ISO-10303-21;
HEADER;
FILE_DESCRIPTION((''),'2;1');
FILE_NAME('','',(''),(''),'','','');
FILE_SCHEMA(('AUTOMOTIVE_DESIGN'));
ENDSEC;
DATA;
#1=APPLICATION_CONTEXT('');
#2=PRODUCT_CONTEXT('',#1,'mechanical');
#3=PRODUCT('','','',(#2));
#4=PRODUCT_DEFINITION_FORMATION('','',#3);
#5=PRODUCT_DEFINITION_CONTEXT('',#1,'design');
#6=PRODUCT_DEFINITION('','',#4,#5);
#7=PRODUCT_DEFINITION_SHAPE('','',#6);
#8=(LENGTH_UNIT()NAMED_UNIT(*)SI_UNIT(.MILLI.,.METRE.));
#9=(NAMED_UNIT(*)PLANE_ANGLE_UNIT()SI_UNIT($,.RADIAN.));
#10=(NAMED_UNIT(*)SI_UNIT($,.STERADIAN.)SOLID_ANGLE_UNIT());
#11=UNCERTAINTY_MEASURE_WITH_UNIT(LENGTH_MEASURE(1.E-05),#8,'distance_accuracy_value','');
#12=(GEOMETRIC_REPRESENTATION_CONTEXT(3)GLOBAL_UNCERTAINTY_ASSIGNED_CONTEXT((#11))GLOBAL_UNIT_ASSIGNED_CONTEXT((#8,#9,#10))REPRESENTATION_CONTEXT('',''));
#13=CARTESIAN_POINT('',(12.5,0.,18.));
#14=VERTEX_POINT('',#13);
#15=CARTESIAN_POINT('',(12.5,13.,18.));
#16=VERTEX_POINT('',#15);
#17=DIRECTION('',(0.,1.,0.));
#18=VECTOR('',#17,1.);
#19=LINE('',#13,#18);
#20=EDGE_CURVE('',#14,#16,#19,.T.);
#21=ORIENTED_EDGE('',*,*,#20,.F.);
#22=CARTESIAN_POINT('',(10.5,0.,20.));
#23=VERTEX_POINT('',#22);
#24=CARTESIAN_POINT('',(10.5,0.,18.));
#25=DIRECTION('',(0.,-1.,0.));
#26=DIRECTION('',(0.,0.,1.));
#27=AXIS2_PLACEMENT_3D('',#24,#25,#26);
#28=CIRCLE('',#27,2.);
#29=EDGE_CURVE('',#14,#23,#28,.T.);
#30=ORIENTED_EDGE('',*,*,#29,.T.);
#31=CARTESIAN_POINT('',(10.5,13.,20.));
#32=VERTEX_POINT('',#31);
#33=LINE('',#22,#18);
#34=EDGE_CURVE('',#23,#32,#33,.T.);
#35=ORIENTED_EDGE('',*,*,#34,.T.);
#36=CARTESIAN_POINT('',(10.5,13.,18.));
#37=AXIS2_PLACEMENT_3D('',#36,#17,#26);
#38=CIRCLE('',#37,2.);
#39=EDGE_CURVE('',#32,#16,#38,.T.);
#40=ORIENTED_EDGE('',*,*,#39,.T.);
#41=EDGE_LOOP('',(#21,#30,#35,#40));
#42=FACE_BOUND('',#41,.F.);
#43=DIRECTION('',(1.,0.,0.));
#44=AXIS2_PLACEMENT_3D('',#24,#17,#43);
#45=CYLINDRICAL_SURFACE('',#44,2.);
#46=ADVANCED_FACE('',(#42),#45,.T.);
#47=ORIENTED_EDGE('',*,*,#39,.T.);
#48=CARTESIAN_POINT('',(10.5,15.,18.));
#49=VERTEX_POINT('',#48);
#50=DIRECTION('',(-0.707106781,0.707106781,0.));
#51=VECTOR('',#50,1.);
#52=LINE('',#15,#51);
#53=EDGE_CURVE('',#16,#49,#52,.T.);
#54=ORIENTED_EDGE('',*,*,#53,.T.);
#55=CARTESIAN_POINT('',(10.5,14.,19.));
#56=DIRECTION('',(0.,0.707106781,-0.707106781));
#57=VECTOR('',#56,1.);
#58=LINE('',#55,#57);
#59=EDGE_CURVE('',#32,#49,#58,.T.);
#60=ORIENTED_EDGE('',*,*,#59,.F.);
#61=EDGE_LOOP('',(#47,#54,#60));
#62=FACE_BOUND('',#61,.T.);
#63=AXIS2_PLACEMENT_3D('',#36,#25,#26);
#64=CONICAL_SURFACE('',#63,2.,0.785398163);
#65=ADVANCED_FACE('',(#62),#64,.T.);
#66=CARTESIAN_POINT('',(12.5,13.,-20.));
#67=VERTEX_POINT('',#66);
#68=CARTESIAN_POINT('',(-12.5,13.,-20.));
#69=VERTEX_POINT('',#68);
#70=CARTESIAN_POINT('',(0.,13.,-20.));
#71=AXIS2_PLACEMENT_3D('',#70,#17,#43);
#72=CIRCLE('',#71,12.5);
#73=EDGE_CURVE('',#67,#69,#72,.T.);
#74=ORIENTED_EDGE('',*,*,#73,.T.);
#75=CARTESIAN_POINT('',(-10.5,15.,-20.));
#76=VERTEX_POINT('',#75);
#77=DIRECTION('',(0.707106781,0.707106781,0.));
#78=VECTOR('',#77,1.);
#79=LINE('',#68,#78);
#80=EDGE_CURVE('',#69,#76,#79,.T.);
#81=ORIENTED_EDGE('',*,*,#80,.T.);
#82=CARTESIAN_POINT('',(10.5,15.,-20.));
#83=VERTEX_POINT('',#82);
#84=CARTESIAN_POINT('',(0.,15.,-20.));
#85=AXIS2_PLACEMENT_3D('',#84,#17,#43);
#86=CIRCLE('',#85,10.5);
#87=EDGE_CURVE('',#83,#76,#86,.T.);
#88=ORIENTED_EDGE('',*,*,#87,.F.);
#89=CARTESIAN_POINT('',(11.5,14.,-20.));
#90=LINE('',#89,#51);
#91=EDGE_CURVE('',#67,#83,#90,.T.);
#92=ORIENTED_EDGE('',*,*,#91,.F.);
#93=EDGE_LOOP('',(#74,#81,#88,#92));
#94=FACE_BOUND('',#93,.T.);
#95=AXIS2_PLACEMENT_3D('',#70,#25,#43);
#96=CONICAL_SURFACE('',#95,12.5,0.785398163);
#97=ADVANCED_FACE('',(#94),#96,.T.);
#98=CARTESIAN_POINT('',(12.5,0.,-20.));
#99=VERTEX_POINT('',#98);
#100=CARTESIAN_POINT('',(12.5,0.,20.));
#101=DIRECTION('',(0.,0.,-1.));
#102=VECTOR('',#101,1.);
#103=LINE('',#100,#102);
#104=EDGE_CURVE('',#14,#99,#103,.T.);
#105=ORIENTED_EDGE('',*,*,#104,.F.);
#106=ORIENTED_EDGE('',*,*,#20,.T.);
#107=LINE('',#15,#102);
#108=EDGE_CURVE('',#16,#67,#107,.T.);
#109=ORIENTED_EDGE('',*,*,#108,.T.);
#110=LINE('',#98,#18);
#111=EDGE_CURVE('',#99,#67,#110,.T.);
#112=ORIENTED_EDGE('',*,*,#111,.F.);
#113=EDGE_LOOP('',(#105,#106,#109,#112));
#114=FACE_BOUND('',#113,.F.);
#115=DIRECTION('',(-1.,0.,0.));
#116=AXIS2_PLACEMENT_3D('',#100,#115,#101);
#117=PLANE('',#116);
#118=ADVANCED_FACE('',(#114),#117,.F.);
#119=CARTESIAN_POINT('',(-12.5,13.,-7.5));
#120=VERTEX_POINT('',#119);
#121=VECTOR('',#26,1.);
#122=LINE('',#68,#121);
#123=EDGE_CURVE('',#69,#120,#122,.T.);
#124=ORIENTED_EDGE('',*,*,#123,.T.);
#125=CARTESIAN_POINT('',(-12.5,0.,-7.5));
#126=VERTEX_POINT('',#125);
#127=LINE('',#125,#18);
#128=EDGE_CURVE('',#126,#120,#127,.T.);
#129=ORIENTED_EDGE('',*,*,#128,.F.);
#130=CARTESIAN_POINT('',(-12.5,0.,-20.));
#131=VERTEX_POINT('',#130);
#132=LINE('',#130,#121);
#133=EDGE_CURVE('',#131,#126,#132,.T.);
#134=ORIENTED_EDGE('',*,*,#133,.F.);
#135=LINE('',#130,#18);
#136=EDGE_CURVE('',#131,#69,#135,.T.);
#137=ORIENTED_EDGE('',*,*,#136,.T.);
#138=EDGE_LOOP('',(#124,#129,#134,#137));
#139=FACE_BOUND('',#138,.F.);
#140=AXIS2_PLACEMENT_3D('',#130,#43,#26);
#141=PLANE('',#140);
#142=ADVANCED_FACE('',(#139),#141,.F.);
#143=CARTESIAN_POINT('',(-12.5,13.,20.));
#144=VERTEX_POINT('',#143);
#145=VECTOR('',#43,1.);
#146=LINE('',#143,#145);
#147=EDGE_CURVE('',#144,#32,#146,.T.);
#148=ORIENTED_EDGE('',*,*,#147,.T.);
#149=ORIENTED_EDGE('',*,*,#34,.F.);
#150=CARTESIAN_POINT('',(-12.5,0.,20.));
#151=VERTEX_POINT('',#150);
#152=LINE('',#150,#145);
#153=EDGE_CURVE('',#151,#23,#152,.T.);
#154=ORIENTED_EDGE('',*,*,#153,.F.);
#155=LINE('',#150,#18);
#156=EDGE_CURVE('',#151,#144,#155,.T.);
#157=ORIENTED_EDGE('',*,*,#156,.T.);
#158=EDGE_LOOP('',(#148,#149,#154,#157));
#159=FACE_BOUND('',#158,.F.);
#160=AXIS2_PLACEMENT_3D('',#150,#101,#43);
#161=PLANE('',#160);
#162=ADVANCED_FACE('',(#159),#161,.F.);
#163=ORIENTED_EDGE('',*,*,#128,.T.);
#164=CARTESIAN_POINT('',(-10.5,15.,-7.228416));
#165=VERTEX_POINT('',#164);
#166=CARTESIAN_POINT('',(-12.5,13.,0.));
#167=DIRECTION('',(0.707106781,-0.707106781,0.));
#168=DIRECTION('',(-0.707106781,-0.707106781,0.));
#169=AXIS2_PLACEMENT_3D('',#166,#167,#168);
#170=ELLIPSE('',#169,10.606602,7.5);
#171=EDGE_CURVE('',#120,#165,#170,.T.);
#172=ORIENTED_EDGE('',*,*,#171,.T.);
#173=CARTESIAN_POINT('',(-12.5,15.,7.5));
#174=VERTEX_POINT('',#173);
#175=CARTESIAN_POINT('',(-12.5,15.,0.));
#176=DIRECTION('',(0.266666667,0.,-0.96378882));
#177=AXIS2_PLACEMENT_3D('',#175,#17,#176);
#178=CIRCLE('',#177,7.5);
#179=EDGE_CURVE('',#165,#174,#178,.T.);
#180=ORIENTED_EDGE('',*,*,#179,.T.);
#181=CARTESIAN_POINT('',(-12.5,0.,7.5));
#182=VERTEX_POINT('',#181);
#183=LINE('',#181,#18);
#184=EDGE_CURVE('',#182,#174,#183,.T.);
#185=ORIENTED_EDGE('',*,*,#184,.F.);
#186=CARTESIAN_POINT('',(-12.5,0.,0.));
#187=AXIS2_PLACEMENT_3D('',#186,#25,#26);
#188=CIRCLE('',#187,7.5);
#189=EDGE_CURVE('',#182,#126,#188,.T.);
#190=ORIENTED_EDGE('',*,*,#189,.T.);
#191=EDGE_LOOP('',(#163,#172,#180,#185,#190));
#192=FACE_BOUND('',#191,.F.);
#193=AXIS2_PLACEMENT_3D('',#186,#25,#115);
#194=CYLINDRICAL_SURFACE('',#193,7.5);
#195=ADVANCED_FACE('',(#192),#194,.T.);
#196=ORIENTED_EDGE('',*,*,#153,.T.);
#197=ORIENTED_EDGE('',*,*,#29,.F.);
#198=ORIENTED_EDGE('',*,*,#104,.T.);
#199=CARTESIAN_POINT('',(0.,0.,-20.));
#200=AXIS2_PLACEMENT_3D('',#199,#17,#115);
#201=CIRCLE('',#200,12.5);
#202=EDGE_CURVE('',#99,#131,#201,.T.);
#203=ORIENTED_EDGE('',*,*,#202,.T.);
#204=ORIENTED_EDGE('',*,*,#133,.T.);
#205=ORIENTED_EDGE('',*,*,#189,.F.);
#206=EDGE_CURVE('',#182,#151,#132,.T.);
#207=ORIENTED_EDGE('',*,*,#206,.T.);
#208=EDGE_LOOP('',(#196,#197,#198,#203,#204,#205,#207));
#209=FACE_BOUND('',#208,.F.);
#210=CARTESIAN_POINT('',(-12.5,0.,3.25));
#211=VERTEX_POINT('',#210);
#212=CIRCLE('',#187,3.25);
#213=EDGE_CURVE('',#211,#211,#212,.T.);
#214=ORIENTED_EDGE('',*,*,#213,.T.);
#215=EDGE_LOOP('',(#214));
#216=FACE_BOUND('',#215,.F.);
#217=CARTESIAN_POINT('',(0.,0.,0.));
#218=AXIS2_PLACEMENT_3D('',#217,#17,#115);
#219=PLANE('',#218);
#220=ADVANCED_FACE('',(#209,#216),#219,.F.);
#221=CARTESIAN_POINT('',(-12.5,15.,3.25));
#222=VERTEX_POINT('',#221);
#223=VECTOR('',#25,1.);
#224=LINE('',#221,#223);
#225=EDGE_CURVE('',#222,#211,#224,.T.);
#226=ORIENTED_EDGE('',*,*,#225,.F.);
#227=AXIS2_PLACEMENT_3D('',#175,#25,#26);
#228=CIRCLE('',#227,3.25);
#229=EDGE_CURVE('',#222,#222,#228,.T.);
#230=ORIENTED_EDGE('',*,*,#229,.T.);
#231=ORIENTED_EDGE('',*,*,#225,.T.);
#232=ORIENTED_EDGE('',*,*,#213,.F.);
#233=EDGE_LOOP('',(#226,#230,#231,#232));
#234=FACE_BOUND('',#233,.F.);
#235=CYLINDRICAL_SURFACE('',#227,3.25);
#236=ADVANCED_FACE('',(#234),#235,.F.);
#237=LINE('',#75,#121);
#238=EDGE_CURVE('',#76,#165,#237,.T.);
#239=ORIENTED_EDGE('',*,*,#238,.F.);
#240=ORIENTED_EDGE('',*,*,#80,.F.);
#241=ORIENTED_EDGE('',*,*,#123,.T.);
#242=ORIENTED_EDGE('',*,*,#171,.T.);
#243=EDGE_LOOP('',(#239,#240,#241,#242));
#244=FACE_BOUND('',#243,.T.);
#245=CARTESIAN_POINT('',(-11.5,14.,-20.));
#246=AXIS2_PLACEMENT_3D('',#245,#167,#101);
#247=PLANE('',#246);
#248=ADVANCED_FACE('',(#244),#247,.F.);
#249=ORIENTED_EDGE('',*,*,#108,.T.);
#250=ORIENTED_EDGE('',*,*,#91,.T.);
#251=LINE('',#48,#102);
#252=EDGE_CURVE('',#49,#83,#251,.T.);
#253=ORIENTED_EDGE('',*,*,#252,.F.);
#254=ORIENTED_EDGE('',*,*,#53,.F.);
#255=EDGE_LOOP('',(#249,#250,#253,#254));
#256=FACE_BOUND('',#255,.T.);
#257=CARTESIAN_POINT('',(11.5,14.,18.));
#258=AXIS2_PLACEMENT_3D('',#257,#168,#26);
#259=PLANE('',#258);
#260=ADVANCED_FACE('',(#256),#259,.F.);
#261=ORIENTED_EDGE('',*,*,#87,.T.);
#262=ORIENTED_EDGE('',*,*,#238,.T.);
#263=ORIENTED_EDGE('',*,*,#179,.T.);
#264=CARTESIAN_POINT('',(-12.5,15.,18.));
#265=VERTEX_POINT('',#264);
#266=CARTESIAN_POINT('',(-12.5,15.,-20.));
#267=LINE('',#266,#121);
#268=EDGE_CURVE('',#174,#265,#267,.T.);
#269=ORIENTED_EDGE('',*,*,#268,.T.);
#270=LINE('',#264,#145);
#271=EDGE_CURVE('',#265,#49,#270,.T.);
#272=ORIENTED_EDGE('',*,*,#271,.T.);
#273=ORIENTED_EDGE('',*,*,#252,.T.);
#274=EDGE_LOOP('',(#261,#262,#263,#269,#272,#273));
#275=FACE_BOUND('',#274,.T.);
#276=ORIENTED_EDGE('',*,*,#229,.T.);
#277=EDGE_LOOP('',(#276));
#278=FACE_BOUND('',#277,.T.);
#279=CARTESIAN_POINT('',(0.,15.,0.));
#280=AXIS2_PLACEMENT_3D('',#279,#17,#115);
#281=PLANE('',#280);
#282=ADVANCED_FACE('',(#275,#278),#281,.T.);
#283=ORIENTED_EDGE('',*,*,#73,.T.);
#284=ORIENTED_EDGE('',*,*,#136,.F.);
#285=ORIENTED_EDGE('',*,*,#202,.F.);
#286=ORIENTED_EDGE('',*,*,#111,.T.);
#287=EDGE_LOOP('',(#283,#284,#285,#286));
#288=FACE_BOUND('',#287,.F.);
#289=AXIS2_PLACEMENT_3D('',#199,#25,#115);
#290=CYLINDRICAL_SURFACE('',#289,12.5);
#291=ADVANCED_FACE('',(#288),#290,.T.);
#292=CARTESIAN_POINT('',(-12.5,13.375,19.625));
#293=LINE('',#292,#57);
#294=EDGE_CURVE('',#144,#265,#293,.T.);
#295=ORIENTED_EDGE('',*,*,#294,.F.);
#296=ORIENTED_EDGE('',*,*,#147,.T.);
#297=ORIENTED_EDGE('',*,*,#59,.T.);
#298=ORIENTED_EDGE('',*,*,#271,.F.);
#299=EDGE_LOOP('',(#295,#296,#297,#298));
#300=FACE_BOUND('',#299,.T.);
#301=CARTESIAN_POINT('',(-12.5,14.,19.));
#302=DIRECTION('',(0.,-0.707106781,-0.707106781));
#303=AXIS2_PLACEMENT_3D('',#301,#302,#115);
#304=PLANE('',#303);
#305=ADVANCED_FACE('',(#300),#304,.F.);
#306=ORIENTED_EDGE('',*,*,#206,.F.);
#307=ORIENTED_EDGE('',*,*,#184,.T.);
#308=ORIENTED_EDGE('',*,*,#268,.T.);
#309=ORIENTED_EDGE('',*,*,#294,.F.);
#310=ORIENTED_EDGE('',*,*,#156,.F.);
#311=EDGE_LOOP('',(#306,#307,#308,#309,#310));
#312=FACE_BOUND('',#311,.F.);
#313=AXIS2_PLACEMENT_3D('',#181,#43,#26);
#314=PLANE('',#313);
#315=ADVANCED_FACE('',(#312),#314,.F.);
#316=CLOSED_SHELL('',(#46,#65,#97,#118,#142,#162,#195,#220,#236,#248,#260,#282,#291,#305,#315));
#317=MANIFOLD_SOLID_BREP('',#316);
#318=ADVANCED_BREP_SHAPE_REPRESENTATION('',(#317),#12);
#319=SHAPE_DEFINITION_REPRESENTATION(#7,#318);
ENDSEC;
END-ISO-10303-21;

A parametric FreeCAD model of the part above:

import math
import FreeCAD as App
import Part
import Sketcher

V = App.Vector
Q = App.Units.Quantity


def edges_at(feature, points):
    """Names of the edges that pass closest to the given points."""
    edges = feature.Shape.Edges
    near = lambda p: min(range(len(edges)), key=lambda i: edges[i].distToShape(Part.Vertex(*p))[0])
    return sorted({f"Edge{near(p) + 1}" for p in points})

doc = App.newDocument("Part")
params = doc.addObject("Spreadsheet::Sheet", "Params")
for row, (alias, value) in enumerate([
    ("sketch1_radius", "12.5 mm"),
    ("sketch1_radius2", "7.5 mm"),
    ("sketch1_height", "40 mm"),
    ("pad1_length", "15 mm"),
    ("fillet_radius", "2 mm"),
    ("chamfer_size", "2 mm"),
    ("sketch2_diameter", "6.5 mm"),
    ("hole_diameter", "6.5 mm"),
], start=1):
    params.set(f"A{row}", alias)
    params.set(f"B{row}", "=" + value)
    params.setAlias(f"B{row}", alias)

body = doc.addObject("PartDesign::Body", "Body")

# Sketch on XZ plane
sketch1 = body.newObject("Sketcher::SketchObject", "Sketch")
sketch1.AttachmentSupport = (doc.getObject("XZ_Plane"), [""])
sketch1.MapMode = "FlatFace"
sketch1.addGeometry(Part.LineSegment(V(12.5, 20, 0), V(12.5, -20, 0)), False)
sketch1.addGeometry(Part.ArcOfCircle(Part.Circle(V(0, -20, 0), V(0, 0, 1), 12.5), math.radians(180), math.radians(360)), False)
sketch1.addGeometry(Part.LineSegment(V(-12.5, -20, 0), V(-12.5, -7.5, 0)), False)
sketch1.addGeometry(Part.ArcOfCircle(Part.Circle(V(-12.5, 0, 0), V(0, 0, 1), 7.5), math.radians(90), math.radians(270)), False)
sketch1.addGeometry(Part.LineSegment(V(-12.5, 7.5, 0), V(-12.5, 20, 0)), False)
sketch1.addGeometry(Part.LineSegment(V(-12.5, 20, 0), V(12.5, 20, 0)), False)
sketch1.addConstraint(Sketcher.Constraint("Tangent", 0, 2, 1, 2))
sketch1.addConstraint(Sketcher.Constraint("Tangent", 1, 1, 2, 1))
sketch1.addConstraint(Sketcher.Constraint("Coincident", 2, 2, 3, 2))
sketch1.addConstraint(Sketcher.Constraint("Coincident", 3, 1, 4, 1))
sketch1.addConstraint(Sketcher.Constraint("Coincident", 4, 2, 5, 1))
sketch1.addConstraint(Sketcher.Constraint("Coincident", 5, 2, 0, 1))
sketch1.addConstraint(Sketcher.Constraint("Vertical", 0))
sketch1.addConstraint(Sketcher.Constraint("Vertical", 2))
sketch1.addConstraint(Sketcher.Constraint("Vertical", 4))
sketch1.addConstraint(Sketcher.Constraint("Horizontal", 5))
sketch1.addConstraint(Sketcher.Constraint("Symmetric", 0, 2, 4, 2, -1, 1))
sketch1.addConstraint(Sketcher.Constraint("Symmetric", 2, 2, 3, 1, -1))
sketch1.addConstraint(Sketcher.Constraint("Vertical", 3, 3, 1, 1))
sketch1.addConstraint(Sketcher.Constraint("Radius", 1, Q("12.5 mm")))
sketch1.addConstraint(Sketcher.Constraint("Radius", 3, Q("7.5 mm")))
sketch1.addConstraint(Sketcher.Constraint("DistanceY", 0, 2, 0, 1, Q("40 mm")))
sketch1.setExpression("Constraints[13]", "Params.sketch1_radius")
sketch1.setExpression("Constraints[14]", "Params.sketch1_radius2")
sketch1.setExpression("Constraints[15]", "Params.sketch1_height")
pad1 = body.newObject("PartDesign::Pad", "Pad")
pad1.Profile = sketch1
pad1.setExpression("Length", "Params.pad1_length")
pad1.Reversed = True
doc.recompute()

fillet = body.newObject("PartDesign::Fillet", "Fillet")
fillet.Base = (pad1, edges_at(pad1, [(12.5, 7.5, 20)]))
fillet.setExpression("Radius", "Params.fillet_radius")
doc.recompute()

chamfer = body.newObject("PartDesign::Chamfer", "Chamfer")
chamfer.Base = (fillet, edges_at(fillet, [
    (-1, 15, 20),
    (11.914, 15, 19.414),
    (12.5, 15, -1),
    (0, 15, -32.5),
    (-12.5, 15, -13.75),
]))
chamfer.setExpression("Size", "Params.chamfer_size")

# Sketch on XZ plane
sketch2 = body.newObject("Sketcher::SketchObject", "Sketch001")
sketch2.AttachmentSupport = (doc.getObject("XZ_Plane"), [""])
sketch2.MapMode = "FlatFace"
sketch2.AttachmentOffset = App.Placement(V(0, 0, -15), App.Rotation())
sketch2.addGeometry(Part.Circle(V(-12.5, 0, 0), V(0, 0, 1), 3.25), False)
sketch2.addConstraint(Sketcher.Constraint("PointOnObject", 0, 3, -1))
sketch2.addConstraint(Sketcher.Constraint("Diameter", 0, Q("6.5 mm")))
sketch2.addConstraint(Sketcher.Constraint("DistanceX", 0, 3, -1, 1, Q("12.5 mm")))
sketch2.setExpression("Constraints[1]", "Params.sketch2_diameter")
doc.recompute()
hole = body.newObject("PartDesign::Hole", "Hole")
hole.Profile = sketch2
hole.ThreadType = "None"
hole.setExpression("Diameter", "Params.hole_diameter")
hole.DepthType = "ThroughAll"
hole.Reversed = True

doc.recompute()
